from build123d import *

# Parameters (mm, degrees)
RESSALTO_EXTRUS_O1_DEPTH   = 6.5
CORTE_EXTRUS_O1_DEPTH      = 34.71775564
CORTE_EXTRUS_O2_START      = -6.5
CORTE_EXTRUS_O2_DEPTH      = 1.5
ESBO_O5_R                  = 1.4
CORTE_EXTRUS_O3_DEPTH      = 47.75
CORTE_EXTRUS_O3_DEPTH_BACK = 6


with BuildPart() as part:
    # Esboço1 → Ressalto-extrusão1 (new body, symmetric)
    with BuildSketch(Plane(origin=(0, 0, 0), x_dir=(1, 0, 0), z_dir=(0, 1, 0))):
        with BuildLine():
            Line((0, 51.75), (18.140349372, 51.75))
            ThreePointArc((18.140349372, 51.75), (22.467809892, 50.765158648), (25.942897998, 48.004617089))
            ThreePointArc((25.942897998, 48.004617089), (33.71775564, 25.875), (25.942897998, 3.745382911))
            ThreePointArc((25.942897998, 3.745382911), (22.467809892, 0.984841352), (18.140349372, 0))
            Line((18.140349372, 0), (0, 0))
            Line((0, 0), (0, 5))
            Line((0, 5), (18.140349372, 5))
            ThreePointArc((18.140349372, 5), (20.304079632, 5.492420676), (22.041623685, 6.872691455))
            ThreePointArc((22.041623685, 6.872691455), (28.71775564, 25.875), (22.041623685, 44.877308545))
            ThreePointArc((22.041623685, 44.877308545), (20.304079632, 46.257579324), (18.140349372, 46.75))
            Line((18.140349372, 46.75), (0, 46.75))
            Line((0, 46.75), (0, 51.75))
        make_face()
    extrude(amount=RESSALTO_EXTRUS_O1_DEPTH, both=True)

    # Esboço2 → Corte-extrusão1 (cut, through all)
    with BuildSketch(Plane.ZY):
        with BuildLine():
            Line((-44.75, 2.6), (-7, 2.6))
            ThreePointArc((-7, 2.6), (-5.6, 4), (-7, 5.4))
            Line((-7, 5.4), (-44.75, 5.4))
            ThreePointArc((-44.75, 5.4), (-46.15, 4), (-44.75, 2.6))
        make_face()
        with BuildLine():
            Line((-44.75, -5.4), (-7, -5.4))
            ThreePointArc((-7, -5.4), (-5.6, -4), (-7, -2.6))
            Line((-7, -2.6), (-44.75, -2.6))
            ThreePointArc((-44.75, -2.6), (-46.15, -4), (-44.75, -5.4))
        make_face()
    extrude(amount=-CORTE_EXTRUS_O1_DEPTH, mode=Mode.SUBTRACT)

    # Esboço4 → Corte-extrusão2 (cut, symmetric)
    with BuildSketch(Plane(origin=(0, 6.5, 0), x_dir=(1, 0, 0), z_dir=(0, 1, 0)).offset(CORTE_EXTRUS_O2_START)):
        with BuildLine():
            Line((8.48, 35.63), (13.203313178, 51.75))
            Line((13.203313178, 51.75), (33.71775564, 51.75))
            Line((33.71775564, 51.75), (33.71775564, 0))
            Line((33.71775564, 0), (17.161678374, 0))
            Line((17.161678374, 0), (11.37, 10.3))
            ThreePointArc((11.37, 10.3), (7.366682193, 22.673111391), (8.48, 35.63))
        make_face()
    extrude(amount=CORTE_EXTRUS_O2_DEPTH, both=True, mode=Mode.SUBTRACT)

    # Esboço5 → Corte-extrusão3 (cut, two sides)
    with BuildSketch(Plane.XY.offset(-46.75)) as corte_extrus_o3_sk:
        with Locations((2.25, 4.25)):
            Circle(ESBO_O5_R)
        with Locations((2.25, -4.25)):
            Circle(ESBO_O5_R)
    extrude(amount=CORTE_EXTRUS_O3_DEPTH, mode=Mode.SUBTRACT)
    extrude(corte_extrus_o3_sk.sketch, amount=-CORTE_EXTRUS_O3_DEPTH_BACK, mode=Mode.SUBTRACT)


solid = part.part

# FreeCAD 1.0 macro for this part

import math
import FreeCAD as App
import Part
import Sketcher
from FreeCAD import Vector

doc = App.newDocument("Part")
body = doc.addObject("PartDesign::Body", "Body")

sketch1 = body.newObject("Sketcher::SketchObject", "Sketch")
sketch1.AttachmentSupport = (doc.getObject("XZ_Plane"), [""])
sketch1.MapMode = "FlatFace"
sketch1.addGeometry([
    Part.LineSegment(Vector(18.1, -51.8, 0), Vector(0, -51.8, 0)),
    Part.LineSegment(Vector(0, -51.8, 0), Vector(0, -46.8, 0)),
    Part.LineSegment(Vector(0, -46.8, 0), Vector(18.1, -46.8, 0)),
    Part.ArcOfCircle(Part.Circle(Vector(18.1, -41.8, 0), Vector(0, 0, 1), 5), math.radians(-90), math.radians(-39)),
    Part.ArcOfCircle(Part.Circle(Vector(-1.7, -25.9, 0), Vector(0, 0, 1), 30.4), math.radians(-39), math.radians(39)),
    Part.ArcOfCircle(Part.Circle(Vector(18.1, -10, 0), Vector(0, 0, 1), 5), math.radians(39), math.radians(90)),
    Part.LineSegment(Vector(18.1, -5, 0), Vector(0, -5, 0)),
    Part.LineSegment(Vector(0, -5, 0), Vector(0, 0, 0)),
    Part.LineSegment(Vector(0, 0, 0), Vector(18.1, 0, 0)),
    Part.ArcOfCircle(Part.Circle(Vector(18.1, -10, 0), Vector(0, 0, 1), 10), math.radians(39), math.radians(90)),
    Part.ArcOfCircle(Part.Circle(Vector(-1.7, -25.9, 0), Vector(0, 0, 1), 35.4), math.radians(-39), math.radians(39)),
    Part.ArcOfCircle(Part.Circle(Vector(18.1, -41.8, 0), Vector(0, 0, 1), 10), math.radians(-90), math.radians(-39)),
], False)
sketch1.addConstraint([
    Sketcher.Constraint("Coincident", 0, 2, 1, 1),
    Sketcher.Constraint("Coincident", 1, 2, 2, 1),
    Sketcher.Constraint("Tangent", 2, 2, 3, 1),
    Sketcher.Constraint("Tangent", 3, 2, 4, 1),
    Sketcher.Constraint("Tangent", 4, 2, 5, 1),
    Sketcher.Constraint("Tangent", 5, 2, 6, 1),
    Sketcher.Constraint("Coincident", 6, 2, 7, 1),
    Sketcher.Constraint("Coincident", 7, 2, 8, 1),
    Sketcher.Constraint("Tangent", 8, 2, 9, 2),
    Sketcher.Constraint("Tangent", 9, 1, 10, 2),
    Sketcher.Constraint("Tangent", 10, 1, 11, 2),
    Sketcher.Constraint("Tangent", 11, 1, 0, 1),
    Sketcher.Constraint("Horizontal", 0),
    Sketcher.Constraint("Vertical", 1),
    Sketcher.Constraint("Horizontal", 2),
    Sketcher.Constraint("Horizontal", 6),
    Sketcher.Constraint("Vertical", 7),
    Sketcher.Constraint("Horizontal", 8),
    Sketcher.Constraint("Coincident", 7, 2, -1, 1),
    Sketcher.Constraint("Coincident", 9, 3, 5, 3),
    Sketcher.Constraint("Coincident", 10, 3, 4, 3),
    Sketcher.Constraint("Coincident", 11, 3, 3, 3),
    Sketcher.Constraint("Equal", 3, 5),
    Sketcher.Constraint("PointOnObject", 0, 2, -2),
    Sketcher.Constraint("Vertical", 3, 3, 5, 3),
    Sketcher.Constraint("Radius", 3, 5.0),
    Sketcher.Constraint("Radius", 9, 10.0),
    Sketcher.Constraint("DistanceY", 3, 3, -1, 1, 41.75),
    Sketcher.Constraint("Radius", 4, 30.38125),
    Sketcher.Constraint("DistanceX", 0, 2, 0, 1, 18.140349),
])
pad1 = body.newObject("PartDesign::Pad", "Pad")
pad1.Profile = sketch1
pad1.Length = 13
pad1.Midplane = True

sketch2 = body.newObject("Sketcher::SketchObject", "Sketch001")
sketch2.AttachmentSupport = (doc.getObject("YZ_Plane"), [""])
sketch2.MapMode = "FlatFace"
sketch2.addGeometry([
    Part.LineSegment(Vector(2.6, -44.8, 0), Vector(2.6, -7, 0)),
    Part.ArcOfCircle(Part.Circle(Vector(4, -7, 0), Vector(0, 0, 1), 1.4), math.radians(0), math.radians(180)),
    Part.LineSegment(Vector(5.4, -7, 0), Vector(5.4, -44.8, 0)),
    Part.ArcOfCircle(Part.Circle(Vector(4, -44.8, 0), Vector(0, 0, 1), 1.4), math.radians(180), math.radians(360)),
    Part.LineSegment(Vector(-5.4, -44.8, 0), Vector(-5.4, -7, 0)),
    Part.ArcOfCircle(Part.Circle(Vector(-4, -7, 0), Vector(0, 0, 1), 1.4), math.radians(0), math.radians(180)),
    Part.LineSegment(Vector(-2.6, -7, 0), Vector(-2.6, -44.8, 0)),
    Part.ArcOfCircle(Part.Circle(Vector(-4, -44.8, 0), Vector(0, 0, 1), 1.4), math.radians(180), math.radians(360)),
], False)
sketch2.addConstraint([
    Sketcher.Constraint("Tangent", 0, 2, 1, 2),
    Sketcher.Constraint("Tangent", 1, 1, 2, 1),
    Sketcher.Constraint("Tangent", 2, 2, 3, 2),
    Sketcher.Constraint("Tangent", 3, 1, 0, 1),
    Sketcher.Constraint("Tangent", 4, 2, 5, 2),
    Sketcher.Constraint("Tangent", 5, 1, 6, 1),
    Sketcher.Constraint("Tangent", 6, 2, 7, 2),
    Sketcher.Constraint("Tangent", 7, 1, 4, 1),
    Sketcher.Constraint("Vertical", 0),
    Sketcher.Constraint("Vertical", 2),
    Sketcher.Constraint("Vertical", 4),
    Sketcher.Constraint("Vertical", 6),
    Sketcher.Constraint("Equal", 3, 5),
    Sketcher.Constraint("Symmetric", 1, 3, 5, 3, -2),
    Sketcher.Constraint("Horizontal", 3, 3, 7, 3),
    Sketcher.Constraint("Radius", 1, 1.4),
    Sketcher.Constraint("DistanceX", -1, 1, 1, 3, 4.0),
    Sketcher.Constraint("DistanceY", 1, 3, -1, 1, 7.0),
    Sketcher.Constraint("DistanceY", 0, 1, 0, 2, 37.75),
])
pocket1 = body.newObject("PartDesign::Pocket", "Pocket")
pocket1.Profile = sketch2
pocket1.Type = "ThroughAll"
pocket1.Reversed = True

sketch3 = body.newObject("Sketcher::SketchObject", "Sketch002")
sketch3.AttachmentSupport = (doc.getObject("XZ_Plane"), [""])
sketch3.MapMode = "FlatFace"
sketch3.addGeometry([
    Part.LineSegment(Vector(13, -52, 0), Vector(8, -36, 0)),
    Part.ArcOfCircle(Part.Circle(Vector(40, -26, 0), Vector(0, 0, 1), 33), math.radians(151), math.radians(196)),
    Part.LineSegment(Vector(11, -10, 0), Vector(17, 0, 0)),
    Part.LineSegment(Vector(17, 0, 0), Vector(34, 0, 0)),
    Part.LineSegment(Vector(34, 0, 0), Vector(34, -52, 0)),
    Part.LineSegment(Vector(34, -52, 0), Vector(13, -52, 0)),
], False)
sketch3.addConstraint([
    Sketcher.Constraint("Tangent", 0, 2, 1, 2),
    Sketcher.Constraint("Tangent", 1, 1, 2, 1),
    Sketcher.Constraint("Coincident", 2, 2, 3, 1),
    Sketcher.Constraint("Coincident", 3, 2, 4, 1),
    Sketcher.Constraint("Coincident", 4, 2, 5, 1),
    Sketcher.Constraint("Coincident", 5, 2, 0, 1),
    Sketcher.Constraint("Horizontal", 3),
    Sketcher.Constraint("Vertical", 4),
    Sketcher.Constraint("Horizontal", 5),
    Sketcher.Constraint("PointOnObject", 2, 2, -1),
    Sketcher.Constraint("Radius", 1, 32.84),
    Sketcher.Constraint("DistanceY", 4, 2, 4, 1, 51.75),
    Sketcher.Constraint("DistanceY", 1, 1, -1, 1, 10.3),
    Sketcher.Constraint("DistanceX", -1, 1, 0, 2, 8.48),
    Sketcher.Constraint("DistanceY", 0, 2, -1, 1, 35.63),
    Sketcher.Constraint("DistanceX", -1, 1, 1, 1, 11.37),
    Sketcher.Constraint("DistanceX", 3, 1, 3, 2, 16.556077),
])
pocket2 = body.newObject("PartDesign::Pocket", "Pocket001")
pocket2.Profile = sketch3
pocket2.Length = 3
pocket2.Midplane = True

sketch4 = body.newObject("Sketcher::SketchObject", "Sketch003")
sketch4.AttachmentSupport = (doc.getObject("XY_Plane"), [""])
sketch4.MapMode = "FlatFace"
sketch4.AttachmentOffset = App.Placement(Vector(0, 0, -46.75), App.Rotation())
sketch4.addGeometry([
    Part.Circle(Vector(2.2, 4.2, 0), Vector(0, 0, 1), 1.4),
    Part.Circle(Vector(2.2, -4.2, 0), Vector(0, 0, 1), 1.4),
], False)
sketch4.addConstraint([
    Sketcher.Constraint("Equal", 0, 1),
    Sketcher.Constraint("Symmetric", 0, 3, 1, 3, -1),
    Sketcher.Constraint("Diameter", 0, 2.8),
    Sketcher.Constraint("DistanceY", 1, 3, 0, 3, 8.5),
    Sketcher.Constraint("DistanceX", -1, 1, 0, 3, 2.25),
])
pocket3 = body.newObject("PartDesign::Pocket", "Pocket002")
pocket3.Profile = sketch4
pocket3.Type = "ThroughAll"
pocket3.Midplane = True

doc.recompute()
